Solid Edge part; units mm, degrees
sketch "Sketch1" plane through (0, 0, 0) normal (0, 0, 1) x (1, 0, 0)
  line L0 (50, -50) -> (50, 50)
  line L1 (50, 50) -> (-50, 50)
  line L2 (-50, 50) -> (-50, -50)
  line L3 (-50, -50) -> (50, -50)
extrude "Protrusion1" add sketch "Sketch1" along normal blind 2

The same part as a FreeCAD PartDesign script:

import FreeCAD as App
import Part
import Sketcher
Q = App.Units.Quantity

doc = App.newDocument("Part")
params = doc.addObject("Spreadsheet::Sheet", "Params")
for row, (alias, value) in enumerate([
    ("sketch1_width", "100 mm"),
    ("pad1_length", "2 mm"),
], start=1):
    params.set(f"A{row}", alias)
    params.set(f"B{row}", "=" + value)
    params.setAlias(f"B{row}", alias)

body = doc.addObject("PartDesign::Body", "Body")

sketch1 = doc.addObject("Sketcher::SketchObject", "Sketch")
body.addObject(sketch1)
sketch1.AttachmentSupport = (doc.XY_Plane, [""])
sketch1.MapMode = "FlatFace"
sketch1.addGeometry(Part.LineSegment(App.Vector(-50, -50, 0), App.Vector(50, -50, 0)), False)
sketch1.addGeometry(Part.LineSegment(App.Vector(50, -50, 0), App.Vector(50, 50, 0)), False)
sketch1.addGeometry(Part.LineSegment(App.Vector(50, 50, 0), App.Vector(-50, 50, 0)), False)
sketch1.addGeometry(Part.LineSegment(App.Vector(-50, 50, 0), App.Vector(-50, -50, 0)), False)
sketch1.addConstraint(Sketcher.Constraint("Coincident", 0, 2, 1, 1))
sketch1.addConstraint(Sketcher.Constraint("Coincident", 1, 2, 2, 1))
sketch1.addConstraint(Sketcher.Constraint("Coincident", 2, 2, 3, 1))
sketch1.addConstraint(Sketcher.Constraint("Coincident", 3, 2, 0, 1))
sketch1.addConstraint(Sketcher.Constraint("Horizontal", 0))
sketch1.addConstraint(Sketcher.Constraint("Vertical", 1))
sketch1.addConstraint(Sketcher.Constraint("Horizontal", 2))
sketch1.addConstraint(Sketcher.Constraint("Vertical", 3))
sketch1.addConstraint(Sketcher.Constraint("Symmetric", 0, 2, 2, 2, -1, 1))
sketch1.addConstraint(Sketcher.Constraint("Equal", 2, 1))
sketch1.addConstraint(Sketcher.Constraint("DistanceX", 0, 1, 0, 2, Q("100 mm")))
sketch1.setExpression("Constraints[10]", "Params.sketch1_width")
pad1 = doc.addObject("PartDesign::Pad", "Pad")
body.addObject(pad1)
pad1.Profile = sketch1
pad1.setExpression("Length", "Params.pad1_length")

doc.recompute()
